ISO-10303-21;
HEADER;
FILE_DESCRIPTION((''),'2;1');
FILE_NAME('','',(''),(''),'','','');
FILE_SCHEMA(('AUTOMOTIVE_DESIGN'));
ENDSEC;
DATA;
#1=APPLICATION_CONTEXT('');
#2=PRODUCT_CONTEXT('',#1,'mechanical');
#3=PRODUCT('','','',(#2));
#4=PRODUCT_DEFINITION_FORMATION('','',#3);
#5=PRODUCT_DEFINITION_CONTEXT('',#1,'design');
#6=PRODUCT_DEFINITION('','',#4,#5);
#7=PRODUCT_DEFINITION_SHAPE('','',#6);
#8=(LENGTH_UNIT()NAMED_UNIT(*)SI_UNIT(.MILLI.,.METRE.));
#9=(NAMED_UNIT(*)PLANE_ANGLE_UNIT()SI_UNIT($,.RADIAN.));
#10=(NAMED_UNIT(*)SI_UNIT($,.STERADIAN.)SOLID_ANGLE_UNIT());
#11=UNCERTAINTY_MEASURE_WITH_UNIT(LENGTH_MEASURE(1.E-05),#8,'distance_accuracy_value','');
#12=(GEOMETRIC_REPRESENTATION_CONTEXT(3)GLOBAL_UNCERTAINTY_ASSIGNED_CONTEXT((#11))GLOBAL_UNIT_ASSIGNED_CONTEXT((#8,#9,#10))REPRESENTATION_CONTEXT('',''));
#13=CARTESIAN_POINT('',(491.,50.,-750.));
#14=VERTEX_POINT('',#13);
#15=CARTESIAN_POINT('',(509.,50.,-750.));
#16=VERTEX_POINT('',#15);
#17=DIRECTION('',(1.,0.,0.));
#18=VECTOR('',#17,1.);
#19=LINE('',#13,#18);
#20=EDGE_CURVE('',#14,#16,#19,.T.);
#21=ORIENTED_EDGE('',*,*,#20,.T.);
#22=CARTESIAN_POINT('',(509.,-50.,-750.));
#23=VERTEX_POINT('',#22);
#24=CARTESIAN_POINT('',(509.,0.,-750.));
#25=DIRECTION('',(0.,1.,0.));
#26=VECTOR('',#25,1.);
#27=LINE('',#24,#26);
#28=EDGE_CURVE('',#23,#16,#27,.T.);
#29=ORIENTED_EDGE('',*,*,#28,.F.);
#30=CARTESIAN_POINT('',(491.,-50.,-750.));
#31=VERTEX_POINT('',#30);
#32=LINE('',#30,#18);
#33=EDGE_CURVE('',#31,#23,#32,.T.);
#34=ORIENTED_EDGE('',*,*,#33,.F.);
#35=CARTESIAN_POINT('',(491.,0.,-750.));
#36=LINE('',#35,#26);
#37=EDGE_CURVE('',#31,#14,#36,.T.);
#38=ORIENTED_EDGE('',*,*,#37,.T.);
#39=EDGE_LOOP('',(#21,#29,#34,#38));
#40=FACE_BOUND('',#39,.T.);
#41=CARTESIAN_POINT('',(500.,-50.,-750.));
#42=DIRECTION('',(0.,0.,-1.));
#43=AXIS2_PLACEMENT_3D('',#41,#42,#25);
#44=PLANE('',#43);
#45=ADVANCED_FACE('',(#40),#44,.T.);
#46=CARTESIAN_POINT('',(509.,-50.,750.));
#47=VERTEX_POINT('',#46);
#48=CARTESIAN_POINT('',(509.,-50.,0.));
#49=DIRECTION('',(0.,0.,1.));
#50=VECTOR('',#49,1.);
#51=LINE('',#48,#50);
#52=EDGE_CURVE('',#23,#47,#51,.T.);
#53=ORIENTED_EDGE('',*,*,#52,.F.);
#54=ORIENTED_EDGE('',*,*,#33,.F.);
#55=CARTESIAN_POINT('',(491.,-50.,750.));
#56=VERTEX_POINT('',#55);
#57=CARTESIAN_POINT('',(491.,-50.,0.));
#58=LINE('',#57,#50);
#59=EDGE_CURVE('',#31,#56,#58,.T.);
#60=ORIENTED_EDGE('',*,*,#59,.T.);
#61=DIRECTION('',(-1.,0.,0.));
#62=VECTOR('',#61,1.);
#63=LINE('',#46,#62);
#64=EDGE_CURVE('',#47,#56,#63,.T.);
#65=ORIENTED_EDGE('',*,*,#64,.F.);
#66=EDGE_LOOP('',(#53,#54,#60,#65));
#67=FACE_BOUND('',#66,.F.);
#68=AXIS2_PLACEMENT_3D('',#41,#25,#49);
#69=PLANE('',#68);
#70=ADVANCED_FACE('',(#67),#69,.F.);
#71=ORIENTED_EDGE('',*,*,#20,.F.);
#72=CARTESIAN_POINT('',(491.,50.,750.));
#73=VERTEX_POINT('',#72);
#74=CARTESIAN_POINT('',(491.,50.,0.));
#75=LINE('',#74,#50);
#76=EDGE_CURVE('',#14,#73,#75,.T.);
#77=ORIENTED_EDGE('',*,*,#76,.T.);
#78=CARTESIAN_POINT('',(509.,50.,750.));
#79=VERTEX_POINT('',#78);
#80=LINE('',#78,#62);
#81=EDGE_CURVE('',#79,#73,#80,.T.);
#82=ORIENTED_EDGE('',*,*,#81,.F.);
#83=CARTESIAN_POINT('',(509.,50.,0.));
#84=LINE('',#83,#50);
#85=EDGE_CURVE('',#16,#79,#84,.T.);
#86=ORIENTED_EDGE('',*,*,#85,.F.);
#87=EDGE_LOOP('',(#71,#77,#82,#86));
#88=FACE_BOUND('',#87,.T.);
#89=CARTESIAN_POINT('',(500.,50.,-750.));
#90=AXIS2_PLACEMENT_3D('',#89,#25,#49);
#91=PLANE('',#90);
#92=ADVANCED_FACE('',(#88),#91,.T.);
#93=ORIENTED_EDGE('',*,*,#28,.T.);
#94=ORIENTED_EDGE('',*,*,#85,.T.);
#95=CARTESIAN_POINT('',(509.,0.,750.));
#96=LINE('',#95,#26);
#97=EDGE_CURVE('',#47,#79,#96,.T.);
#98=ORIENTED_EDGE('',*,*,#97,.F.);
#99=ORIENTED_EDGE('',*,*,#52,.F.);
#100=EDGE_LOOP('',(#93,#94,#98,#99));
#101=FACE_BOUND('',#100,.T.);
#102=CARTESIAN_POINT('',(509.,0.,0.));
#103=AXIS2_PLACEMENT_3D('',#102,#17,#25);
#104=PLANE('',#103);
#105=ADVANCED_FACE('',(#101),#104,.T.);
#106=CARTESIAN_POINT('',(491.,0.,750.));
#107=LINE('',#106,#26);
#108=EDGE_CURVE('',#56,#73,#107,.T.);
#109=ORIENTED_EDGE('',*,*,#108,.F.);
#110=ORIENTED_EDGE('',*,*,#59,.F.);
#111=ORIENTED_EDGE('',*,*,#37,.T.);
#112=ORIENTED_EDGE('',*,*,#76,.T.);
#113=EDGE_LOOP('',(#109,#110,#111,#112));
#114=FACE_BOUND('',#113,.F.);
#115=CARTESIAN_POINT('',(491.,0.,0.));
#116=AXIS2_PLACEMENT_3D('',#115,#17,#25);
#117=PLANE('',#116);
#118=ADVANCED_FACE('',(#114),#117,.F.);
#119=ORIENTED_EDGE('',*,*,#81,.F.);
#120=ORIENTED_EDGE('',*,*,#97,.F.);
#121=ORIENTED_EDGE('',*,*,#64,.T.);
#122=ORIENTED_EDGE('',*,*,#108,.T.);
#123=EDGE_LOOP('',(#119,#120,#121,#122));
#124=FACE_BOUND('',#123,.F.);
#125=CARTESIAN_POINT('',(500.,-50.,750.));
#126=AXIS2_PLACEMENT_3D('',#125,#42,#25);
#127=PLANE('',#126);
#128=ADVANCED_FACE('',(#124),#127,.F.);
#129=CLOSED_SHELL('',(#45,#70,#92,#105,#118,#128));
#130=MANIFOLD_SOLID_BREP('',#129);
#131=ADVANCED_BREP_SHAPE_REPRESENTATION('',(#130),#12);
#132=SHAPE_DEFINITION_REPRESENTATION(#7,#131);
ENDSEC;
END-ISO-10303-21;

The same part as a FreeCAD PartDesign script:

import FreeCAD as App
import Part
import Sketcher
Q = App.Units.Quantity


def add_polygon(sketch, points):
    """Adds a closed chain of lines whose ends are joined by coincident constraints."""
    first, n = sketch.GeometryCount, len(points)
    for a, b in zip(points, points[1:] + points[:1]):
        sketch.addGeometry(Part.LineSegment(App.Vector(*a, 0), App.Vector(*b, 0)), False)
    for i in range(n):
        sketch.addConstraint(Sketcher.Constraint("Coincident", first + i, 2, first + (i + 1) % n, 1))

doc = App.newDocument("Part")
body = doc.addObject("PartDesign::Body", "Body")

# Sketch on YZ plane
sketch1 = doc.addObject("Sketcher::SketchObject", "Sketch")
body.addObject(sketch1)
sketch1.AttachmentSupport = (doc.YZ_Plane, [""])
sketch1.MapMode = "FlatFace"
add_polygon(sketch1, [(-50, 750), (-50, -750), (50, -750), (50, 750)])  # lines 0-3
sketch1.addConstraint([
    Sketcher.Constraint("Vertical", 0),
    Sketcher.Constraint("Horizontal", 1),
    Sketcher.Constraint("Vertical", 2),
    Sketcher.Constraint("Horizontal", 3),
    Sketcher.Constraint("Symmetric", 0, 2, 2, 2, -1, 1),
    Sketcher.Constraint("DistanceX", 1, 1, 1, 2, Q("100 mm")),
    Sketcher.Constraint("DistanceY", 0, 2, 0, 1, Q("1500 mm")),
])
pad1 = doc.addObject("PartDesign::Pad", "Pad")
body.addObject(pad1)
pad1.Profile = sketch1
pad1.Length = 18
pad1.Midplane = True
body2 = doc.addObject("PartDesign::Body", "Body001")
doc.recompute()

body.Placement = App.Placement(App.Vector(500, 0, 0), App.Rotation(App.Vector(0, 0, 1), 0))
boolean = doc.addObject("PartDesign::Boolean", "Boolean")
body2.addObject(boolean)
boolean.Type = "Fuse"
boolean.addObjects([body])

doc.recompute()
